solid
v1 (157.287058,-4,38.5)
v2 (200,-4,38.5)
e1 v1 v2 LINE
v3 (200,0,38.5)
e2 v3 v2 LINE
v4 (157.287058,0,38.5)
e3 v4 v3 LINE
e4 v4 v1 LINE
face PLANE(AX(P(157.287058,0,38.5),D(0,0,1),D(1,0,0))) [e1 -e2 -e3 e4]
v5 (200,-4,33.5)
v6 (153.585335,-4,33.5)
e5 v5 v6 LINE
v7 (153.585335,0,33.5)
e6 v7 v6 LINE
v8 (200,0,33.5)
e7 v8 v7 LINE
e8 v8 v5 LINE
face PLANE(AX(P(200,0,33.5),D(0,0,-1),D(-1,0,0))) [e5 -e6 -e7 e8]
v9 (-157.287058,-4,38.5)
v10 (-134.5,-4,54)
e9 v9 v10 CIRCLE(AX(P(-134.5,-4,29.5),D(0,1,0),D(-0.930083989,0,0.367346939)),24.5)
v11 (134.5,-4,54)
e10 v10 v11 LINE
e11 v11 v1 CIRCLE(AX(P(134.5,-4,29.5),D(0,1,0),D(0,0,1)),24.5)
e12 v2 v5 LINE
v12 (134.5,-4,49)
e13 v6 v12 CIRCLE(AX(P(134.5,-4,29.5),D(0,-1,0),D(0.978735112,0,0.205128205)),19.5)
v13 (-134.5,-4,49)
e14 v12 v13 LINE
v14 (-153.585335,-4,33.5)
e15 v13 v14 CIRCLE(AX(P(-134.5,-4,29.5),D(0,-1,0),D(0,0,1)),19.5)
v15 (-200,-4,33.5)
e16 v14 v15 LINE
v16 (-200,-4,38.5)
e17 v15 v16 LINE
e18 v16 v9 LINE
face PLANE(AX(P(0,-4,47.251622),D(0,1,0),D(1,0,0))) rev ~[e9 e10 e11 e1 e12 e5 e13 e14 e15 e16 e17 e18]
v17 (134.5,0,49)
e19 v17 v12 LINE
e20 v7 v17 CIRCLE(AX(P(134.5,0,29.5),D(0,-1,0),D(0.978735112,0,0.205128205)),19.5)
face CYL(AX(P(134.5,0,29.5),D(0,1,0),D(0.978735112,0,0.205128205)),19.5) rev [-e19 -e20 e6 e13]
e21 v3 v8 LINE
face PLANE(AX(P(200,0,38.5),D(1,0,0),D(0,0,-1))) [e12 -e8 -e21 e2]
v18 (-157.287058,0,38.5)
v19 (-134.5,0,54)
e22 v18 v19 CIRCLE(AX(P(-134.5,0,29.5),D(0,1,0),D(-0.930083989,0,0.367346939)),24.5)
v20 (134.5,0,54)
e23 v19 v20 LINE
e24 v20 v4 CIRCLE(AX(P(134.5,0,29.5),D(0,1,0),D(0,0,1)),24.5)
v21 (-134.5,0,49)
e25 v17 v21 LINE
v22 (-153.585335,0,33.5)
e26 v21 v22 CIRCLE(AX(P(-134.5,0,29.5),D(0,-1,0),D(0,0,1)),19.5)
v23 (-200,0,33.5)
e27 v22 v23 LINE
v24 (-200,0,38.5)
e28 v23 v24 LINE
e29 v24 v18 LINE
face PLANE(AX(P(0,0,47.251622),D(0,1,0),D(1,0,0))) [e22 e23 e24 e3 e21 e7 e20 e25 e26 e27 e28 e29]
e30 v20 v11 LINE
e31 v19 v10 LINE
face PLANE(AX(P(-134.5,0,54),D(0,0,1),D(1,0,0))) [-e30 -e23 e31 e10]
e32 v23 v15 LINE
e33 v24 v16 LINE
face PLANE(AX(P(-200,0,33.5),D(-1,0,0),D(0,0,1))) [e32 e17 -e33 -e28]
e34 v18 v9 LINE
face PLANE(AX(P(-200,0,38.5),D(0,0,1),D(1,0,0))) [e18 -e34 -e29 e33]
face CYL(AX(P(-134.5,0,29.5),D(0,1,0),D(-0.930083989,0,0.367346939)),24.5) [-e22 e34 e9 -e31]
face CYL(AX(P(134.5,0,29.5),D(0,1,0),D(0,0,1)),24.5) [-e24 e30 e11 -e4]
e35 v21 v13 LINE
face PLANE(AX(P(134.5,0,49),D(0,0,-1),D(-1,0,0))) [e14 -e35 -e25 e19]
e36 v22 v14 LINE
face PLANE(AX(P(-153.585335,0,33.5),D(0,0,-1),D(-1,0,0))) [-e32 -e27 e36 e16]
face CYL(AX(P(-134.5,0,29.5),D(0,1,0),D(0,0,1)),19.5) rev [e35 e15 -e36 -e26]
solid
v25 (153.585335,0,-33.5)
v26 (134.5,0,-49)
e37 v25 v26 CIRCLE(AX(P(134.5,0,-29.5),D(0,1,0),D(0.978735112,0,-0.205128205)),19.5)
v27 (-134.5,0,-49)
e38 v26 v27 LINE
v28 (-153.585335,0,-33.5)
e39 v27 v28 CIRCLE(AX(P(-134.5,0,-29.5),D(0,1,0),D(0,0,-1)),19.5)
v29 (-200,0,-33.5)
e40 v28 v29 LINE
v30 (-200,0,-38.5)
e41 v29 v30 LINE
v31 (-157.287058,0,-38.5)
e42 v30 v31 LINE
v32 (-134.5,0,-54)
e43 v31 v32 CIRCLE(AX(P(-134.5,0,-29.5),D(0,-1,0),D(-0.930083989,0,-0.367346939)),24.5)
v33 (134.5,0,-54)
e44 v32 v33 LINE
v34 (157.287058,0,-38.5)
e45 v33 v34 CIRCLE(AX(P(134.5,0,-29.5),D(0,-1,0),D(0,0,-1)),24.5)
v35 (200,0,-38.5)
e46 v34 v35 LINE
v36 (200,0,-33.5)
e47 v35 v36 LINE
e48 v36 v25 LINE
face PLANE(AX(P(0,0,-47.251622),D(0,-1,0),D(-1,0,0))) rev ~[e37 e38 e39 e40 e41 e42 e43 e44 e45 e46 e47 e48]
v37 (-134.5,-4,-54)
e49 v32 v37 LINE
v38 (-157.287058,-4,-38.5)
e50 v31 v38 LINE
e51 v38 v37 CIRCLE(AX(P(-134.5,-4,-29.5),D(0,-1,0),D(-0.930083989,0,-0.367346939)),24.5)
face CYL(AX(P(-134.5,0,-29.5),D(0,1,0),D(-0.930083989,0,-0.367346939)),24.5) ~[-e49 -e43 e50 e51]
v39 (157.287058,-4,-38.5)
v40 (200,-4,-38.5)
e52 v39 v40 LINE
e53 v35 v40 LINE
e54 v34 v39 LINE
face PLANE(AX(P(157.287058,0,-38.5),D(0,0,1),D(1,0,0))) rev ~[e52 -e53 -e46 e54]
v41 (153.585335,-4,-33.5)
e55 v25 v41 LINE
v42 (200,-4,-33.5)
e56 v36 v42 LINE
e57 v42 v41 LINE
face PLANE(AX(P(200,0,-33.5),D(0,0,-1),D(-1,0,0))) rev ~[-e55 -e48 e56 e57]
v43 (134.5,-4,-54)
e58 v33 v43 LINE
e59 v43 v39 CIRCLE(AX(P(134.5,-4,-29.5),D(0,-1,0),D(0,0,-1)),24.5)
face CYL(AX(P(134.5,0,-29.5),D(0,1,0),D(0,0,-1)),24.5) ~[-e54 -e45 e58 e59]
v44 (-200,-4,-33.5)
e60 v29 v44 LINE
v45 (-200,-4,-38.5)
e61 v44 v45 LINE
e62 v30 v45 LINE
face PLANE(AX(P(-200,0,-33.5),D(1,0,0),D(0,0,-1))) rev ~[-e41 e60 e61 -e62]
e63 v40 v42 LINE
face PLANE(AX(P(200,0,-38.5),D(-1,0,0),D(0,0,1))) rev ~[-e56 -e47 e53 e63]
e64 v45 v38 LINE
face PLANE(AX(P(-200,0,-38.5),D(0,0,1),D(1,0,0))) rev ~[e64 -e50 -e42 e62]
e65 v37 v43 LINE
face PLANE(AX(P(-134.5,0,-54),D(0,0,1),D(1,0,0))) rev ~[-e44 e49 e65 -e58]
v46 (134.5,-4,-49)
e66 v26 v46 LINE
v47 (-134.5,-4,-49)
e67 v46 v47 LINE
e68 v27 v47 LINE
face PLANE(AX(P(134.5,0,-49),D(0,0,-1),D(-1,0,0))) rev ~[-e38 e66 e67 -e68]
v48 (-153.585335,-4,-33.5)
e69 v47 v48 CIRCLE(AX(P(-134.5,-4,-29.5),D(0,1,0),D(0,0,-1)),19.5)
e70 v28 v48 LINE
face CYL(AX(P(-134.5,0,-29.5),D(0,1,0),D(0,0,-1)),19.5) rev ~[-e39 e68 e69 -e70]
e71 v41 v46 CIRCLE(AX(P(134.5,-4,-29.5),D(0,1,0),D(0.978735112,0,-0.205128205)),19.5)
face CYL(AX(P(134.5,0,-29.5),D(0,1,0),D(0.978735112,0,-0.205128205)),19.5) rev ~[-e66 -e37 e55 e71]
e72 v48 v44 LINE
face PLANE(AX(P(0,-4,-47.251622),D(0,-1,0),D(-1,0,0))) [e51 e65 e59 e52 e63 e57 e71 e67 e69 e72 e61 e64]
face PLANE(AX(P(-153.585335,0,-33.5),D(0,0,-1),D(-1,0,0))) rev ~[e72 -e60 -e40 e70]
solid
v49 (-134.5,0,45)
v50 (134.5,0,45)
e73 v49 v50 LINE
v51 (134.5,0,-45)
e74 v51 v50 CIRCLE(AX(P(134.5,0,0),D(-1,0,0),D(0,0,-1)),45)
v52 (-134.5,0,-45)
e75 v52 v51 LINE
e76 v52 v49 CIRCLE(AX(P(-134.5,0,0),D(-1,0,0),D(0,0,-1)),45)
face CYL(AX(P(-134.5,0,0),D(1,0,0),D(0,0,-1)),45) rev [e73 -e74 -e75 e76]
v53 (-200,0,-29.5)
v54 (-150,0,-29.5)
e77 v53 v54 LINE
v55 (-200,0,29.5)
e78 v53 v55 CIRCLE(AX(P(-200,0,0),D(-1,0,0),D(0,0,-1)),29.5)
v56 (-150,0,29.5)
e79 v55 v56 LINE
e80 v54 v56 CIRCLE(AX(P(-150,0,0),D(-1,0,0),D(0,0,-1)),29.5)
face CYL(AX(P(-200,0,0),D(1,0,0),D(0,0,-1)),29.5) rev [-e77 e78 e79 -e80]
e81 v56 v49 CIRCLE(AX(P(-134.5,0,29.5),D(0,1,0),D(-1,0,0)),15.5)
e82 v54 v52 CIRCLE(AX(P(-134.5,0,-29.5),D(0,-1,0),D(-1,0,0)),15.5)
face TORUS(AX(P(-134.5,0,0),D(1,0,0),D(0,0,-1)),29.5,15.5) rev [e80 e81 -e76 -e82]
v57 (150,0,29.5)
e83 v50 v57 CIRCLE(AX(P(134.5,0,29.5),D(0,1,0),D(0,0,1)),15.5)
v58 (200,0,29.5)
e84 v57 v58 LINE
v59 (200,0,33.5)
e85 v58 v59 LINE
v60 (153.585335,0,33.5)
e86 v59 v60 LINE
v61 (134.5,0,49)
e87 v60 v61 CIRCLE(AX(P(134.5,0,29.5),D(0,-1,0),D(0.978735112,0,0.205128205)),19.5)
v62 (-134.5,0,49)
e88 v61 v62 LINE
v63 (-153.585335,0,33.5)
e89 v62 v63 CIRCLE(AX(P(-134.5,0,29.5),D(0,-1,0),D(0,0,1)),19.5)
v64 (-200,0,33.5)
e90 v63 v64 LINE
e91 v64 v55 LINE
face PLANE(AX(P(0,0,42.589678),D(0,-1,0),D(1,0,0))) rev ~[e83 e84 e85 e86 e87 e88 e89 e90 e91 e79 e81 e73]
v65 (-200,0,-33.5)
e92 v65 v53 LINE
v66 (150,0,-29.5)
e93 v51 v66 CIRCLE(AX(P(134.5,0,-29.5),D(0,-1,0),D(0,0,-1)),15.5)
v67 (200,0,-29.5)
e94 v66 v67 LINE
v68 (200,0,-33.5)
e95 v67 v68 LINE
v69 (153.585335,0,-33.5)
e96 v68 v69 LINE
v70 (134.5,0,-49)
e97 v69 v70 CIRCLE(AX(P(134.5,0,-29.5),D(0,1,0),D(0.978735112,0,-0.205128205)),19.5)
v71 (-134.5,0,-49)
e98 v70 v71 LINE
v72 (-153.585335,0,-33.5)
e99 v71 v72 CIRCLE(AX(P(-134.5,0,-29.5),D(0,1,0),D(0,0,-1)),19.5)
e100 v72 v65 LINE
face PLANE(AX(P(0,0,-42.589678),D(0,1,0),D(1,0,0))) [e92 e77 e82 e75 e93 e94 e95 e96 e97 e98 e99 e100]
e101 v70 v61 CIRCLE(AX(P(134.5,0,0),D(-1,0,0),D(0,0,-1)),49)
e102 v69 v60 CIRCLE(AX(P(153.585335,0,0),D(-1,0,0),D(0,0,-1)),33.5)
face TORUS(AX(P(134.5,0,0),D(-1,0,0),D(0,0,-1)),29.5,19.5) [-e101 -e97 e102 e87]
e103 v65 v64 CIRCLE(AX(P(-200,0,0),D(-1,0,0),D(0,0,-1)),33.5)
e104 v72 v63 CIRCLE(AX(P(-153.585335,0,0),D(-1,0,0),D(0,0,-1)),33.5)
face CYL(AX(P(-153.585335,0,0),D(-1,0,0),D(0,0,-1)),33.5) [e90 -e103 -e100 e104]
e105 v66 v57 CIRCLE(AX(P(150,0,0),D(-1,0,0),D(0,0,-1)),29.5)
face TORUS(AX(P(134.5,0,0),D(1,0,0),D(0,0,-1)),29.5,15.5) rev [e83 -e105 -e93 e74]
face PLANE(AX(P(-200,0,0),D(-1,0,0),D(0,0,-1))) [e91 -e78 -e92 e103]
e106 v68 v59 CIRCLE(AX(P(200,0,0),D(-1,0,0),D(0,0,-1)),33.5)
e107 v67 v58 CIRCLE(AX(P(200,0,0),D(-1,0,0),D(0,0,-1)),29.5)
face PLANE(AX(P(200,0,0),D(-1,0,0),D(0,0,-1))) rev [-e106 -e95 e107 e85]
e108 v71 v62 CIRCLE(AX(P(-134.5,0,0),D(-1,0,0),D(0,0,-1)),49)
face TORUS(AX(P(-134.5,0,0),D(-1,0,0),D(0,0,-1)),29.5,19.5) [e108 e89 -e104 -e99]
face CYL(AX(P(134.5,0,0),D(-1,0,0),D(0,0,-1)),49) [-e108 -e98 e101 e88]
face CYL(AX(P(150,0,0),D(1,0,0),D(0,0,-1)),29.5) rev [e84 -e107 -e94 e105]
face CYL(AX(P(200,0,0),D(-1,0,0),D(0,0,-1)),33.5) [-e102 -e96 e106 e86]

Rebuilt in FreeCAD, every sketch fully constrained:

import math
import FreeCAD as App
import Part
import Sketcher

V = App.Vector
Q = App.Units.Quantity

doc = App.newDocument("Part")
body = doc.addObject("PartDesign::Body", "Body")

sketch1 = body.newObject("Sketcher::SketchObject", "Sketch")
sketch1.AttachmentSupport = (doc.getObject("XZ_Plane"), [""])
sketch1.MapMode = "FlatFace"
sketch1.addGeometry(Part.LineSegment(V(-200, -29.5, 0), V(-150, -29.5, 0)), False)
sketch1.addGeometry(Part.ArcOfCircle(Part.Circle(V(-134.5, -29.5, 0), V(0, 0, 1), 15.5), math.radians(-180), math.radians(-90)), False)
sketch1.addGeometry(Part.LineSegment(V(-134.5, -45, 0), V(134.5, -45, 0)), False)
sketch1.addGeometry(Part.ArcOfCircle(Part.Circle(V(134.5, -29.5, 0), V(0, 0, 1), 15.5), math.radians(-90), math.radians(0)), False)
sketch1.addGeometry(Part.LineSegment(V(150, -29.5, 0), V(200, -29.5, 0)), False)
sketch1.addGeometry(Part.LineSegment(V(200, -29.5, 0), V(200, -33.5, 0)), False)
sketch1.addGeometry(Part.LineSegment(V(200, -33.5, 0), V(153.6, -33.5, 0)), False)
sketch1.addGeometry(Part.ArcOfCircle(Part.Circle(V(134.5, -29.5, 0), V(0, 0, 1), 19.5), math.radians(-90), math.radians(-12)), False)
sketch1.addGeometry(Part.LineSegment(V(134.5, -49, 0), V(-134.5, -49, 0)), False)
sketch1.addGeometry(Part.ArcOfCircle(Part.Circle(V(-134.5, -29.5, 0), V(0, 0, 1), 19.5), math.radians(-168), math.radians(-90)), False)
sketch1.addGeometry(Part.LineSegment(V(-153.6, -33.5, 0), V(-200, -33.5, 0)), False)
sketch1.addGeometry(Part.LineSegment(V(-200, -33.5, 0), V(-200, -29.5, 0)), False)
sketch1.addConstraint(Sketcher.Constraint("Coincident", 0, 2, 1, 1))
sketch1.addConstraint(Sketcher.Constraint("Tangent", 1, 2, 2, 1))
sketch1.addConstraint(Sketcher.Constraint("Tangent", 2, 2, 3, 1))
sketch1.addConstraint(Sketcher.Constraint("Coincident", 3, 2, 4, 1))
sketch1.addConstraint(Sketcher.Constraint("Coincident", 4, 2, 5, 1))
sketch1.addConstraint(Sketcher.Constraint("Coincident", 5, 2, 6, 1))
sketch1.addConstraint(Sketcher.Constraint("Coincident", 6, 2, 7, 2))
sketch1.addConstraint(Sketcher.Constraint("Tangent", 7, 1, 8, 1))
sketch1.addConstraint(Sketcher.Constraint("Tangent", 8, 2, 9, 2))
sketch1.addConstraint(Sketcher.Constraint("Coincident", 9, 1, 10, 1))
sketch1.addConstraint(Sketcher.Constraint("Coincident", 10, 2, 11, 1))
sketch1.addConstraint(Sketcher.Constraint("Coincident", 11, 2, 0, 1))
sketch1.addConstraint(Sketcher.Constraint("Horizontal", 0))
sketch1.addConstraint(Sketcher.Constraint("Horizontal", 2))
sketch1.addConstraint(Sketcher.Constraint("Horizontal", 4))
sketch1.addConstraint(Sketcher.Constraint("Vertical", 5))
sketch1.addConstraint(Sketcher.Constraint("Horizontal", 6))
sketch1.addConstraint(Sketcher.Constraint("Horizontal", 8))
sketch1.addConstraint(Sketcher.Constraint("Horizontal", 10))
sketch1.addConstraint(Sketcher.Constraint("Vertical", 11))
sketch1.addConstraint(Sketcher.Constraint("Coincident", 7, 3, 3, 3))
sketch1.addConstraint(Sketcher.Constraint("Coincident", 9, 3, 1, 3))
sketch1.addConstraint(Sketcher.Constraint("Equal", 1, 3))
sketch1.addConstraint(Sketcher.Constraint("Symmetric", 0, 2, 3, 2, -2))
sketch1.addConstraint(Sketcher.Constraint("Symmetric", 5, 2, 10, 2, -2))
sketch1.addConstraint(Sketcher.Constraint("Horizontal", 9, 3, 0, 2))
sketch1.addConstraint(Sketcher.Constraint("Radius", 1, Q("15.5 mm")))
sketch1.addConstraint(Sketcher.Constraint("Radius", 7, Q("19.5 mm")))
sketch1.addConstraint(Sketcher.Constraint("DistanceX", 0, 1, 0, 2, Q("50 mm")))
sketch1.addConstraint(Sketcher.Constraint("DistanceX", 2, 1, 2, 2, Q("269 mm")))
sketch1.addConstraint(Sketcher.Constraint("DistanceY", 5, 2, 5, 1, Q("4 mm")))
sketch1.addConstraint(Sketcher.Constraint("DistanceY", 1, 2, -1, 1, Q("45 mm")))
revolution = body.newObject("PartDesign::Revolution", "Revolution")
revolution.Profile = sketch1
revolution.ReferenceAxis = (sketch1, ["H_Axis"])
revolution.Angle = 180
revolution.Reversed = True
body2 = doc.addObject("PartDesign::Body", "Body001")

sketch2 = body2.newObject("Sketcher::SketchObject", "Sketch001")
sketch2.AttachmentSupport = (doc.getObject("XZ_Plane001"), [""])
sketch2.MapMode = "FlatFace"
sketch2.addGeometry(Part.LineSegment(V(154, -34, 0), V(200, -34, 0)), False)
sketch2.addGeometry(Part.LineSegment(V(200, -34, 0), V(200, -38, 0)), False)
sketch2.addGeometry(Part.LineSegment(V(200, -38, 0), V(157, -38, 0)), False)
sketch2.addGeometry(Part.ArcOfCircle(Part.Circle(V(135, -30, 0), V(0, 0, 1), 24), math.radians(-90), math.radians(-22)), False)
sketch2.addGeometry(Part.LineSegment(V(134, -54, 0), V(-134, -54, 0)), False)
sketch2.addGeometry(Part.ArcOfCircle(Part.Circle(V(-135, -30, 0), V(0, 0, 1), 24), math.radians(-158), math.radians(-90)), False)
sketch2.addGeometry(Part.LineSegment(V(-157, -38, 0), V(-200, -38, 0)), False)
sketch2.addGeometry(Part.LineSegment(V(-200, -38, 0), V(-200, -34, 0)), False)
sketch2.addGeometry(Part.LineSegment(V(-200, -34, 0), V(-154, -34, 0)), False)
sketch2.addGeometry(Part.ArcOfCircle(Part.Circle(V(-134, -29, 0), V(0, 0, 1), 20), math.radians(-168), math.radians(-90)), False)
sketch2.addGeometry(Part.LineSegment(V(-134, -49, 0), V(134, -49, 0)), False)
sketch2.addGeometry(Part.ArcOfCircle(Part.Circle(V(134, -29, 0), V(0, 0, 1), 20), math.radians(-90), math.radians(-12)), False)
sketch2.addConstraint(Sketcher.Constraint("Coincident", 0, 2, 1, 1))
sketch2.addConstraint(Sketcher.Constraint("Coincident", 1, 2, 2, 1))
sketch2.addConstraint(Sketcher.Constraint("Coincident", 2, 2, 3, 2))
sketch2.addConstraint(Sketcher.Constraint("Tangent", 3, 1, 4, 1))
sketch2.addConstraint(Sketcher.Constraint("Tangent", 4, 2, 5, 2))
sketch2.addConstraint(Sketcher.Constraint("Coincident", 5, 1, 6, 1))
sketch2.addConstraint(Sketcher.Constraint("Coincident", 6, 2, 7, 1))
sketch2.addConstraint(Sketcher.Constraint("Coincident", 7, 2, 8, 1))
sketch2.addConstraint(Sketcher.Constraint("Coincident", 8, 2, 9, 1))
sketch2.addConstraint(Sketcher.Constraint("Tangent", 9, 2, 10, 1))
sketch2.addConstraint(Sketcher.Constraint("Tangent", 10, 2, 11, 1))
sketch2.addConstraint(Sketcher.Constraint("Coincident", 11, 2, 0, 1))
sketch2.addConstraint(Sketcher.Constraint("Horizontal", 0))
sketch2.addConstraint(Sketcher.Constraint("Vertical", 1))
sketch2.addConstraint(Sketcher.Constraint("Horizontal", 2))
sketch2.addConstraint(Sketcher.Constraint("Horizontal", 4))
sketch2.addConstraint(Sketcher.Constraint("Horizontal", 6))
sketch2.addConstraint(Sketcher.Constraint("Vertical", 7))
sketch2.addConstraint(Sketcher.Constraint("Horizontal", 8))
sketch2.addConstraint(Sketcher.Constraint("Horizontal", 10))
sketch2.addConstraint(Sketcher.Constraint("Coincident", 9, 3, 5, 3))
sketch2.addConstraint(Sketcher.Constraint("Coincident", 11, 3, 3, 3))
sketch2.addConstraint(Sketcher.Constraint("Equal", 3, 5))
sketch2.addConstraint(Sketcher.Constraint("Symmetric", 2, 2, 5, 1, -2))
sketch2.addConstraint(Sketcher.Constraint("Symmetric", 0, 2, 7, 2, -2))
sketch2.addConstraint(Sketcher.Constraint("Radius", 3, Q("24.5 mm")))
sketch2.addConstraint(Sketcher.Constraint("Radius", 9, Q("19.5 mm")))
sketch2.addConstraint(Sketcher.Constraint("DistanceX", 4, 2, 4, 1, Q("269 mm")))
sketch2.addConstraint(Sketcher.Constraint("DistanceY", 1, 2, 1, 1, Q("5 mm")))
sketch2.addConstraint(Sketcher.Constraint("DistanceX", -1, 1, 0, 2, Q("200 mm")))
sketch2.addConstraint(Sketcher.Constraint("DistanceY", 3, 1, -1, 1, Q("54 mm")))
sketch2.addConstraint(Sketcher.Constraint("DistanceY", 0, 2, 3, 3, Q("4 mm")))
pad1 = body2.newObject("PartDesign::Pad", "Pad")
pad1.Profile = sketch2
pad1.Length = 4
body3 = doc.addObject("PartDesign::Body", "Body002")

sketch3 = body3.newObject("Sketcher::SketchObject", "Sketch002")
sketch3.AttachmentSupport = (doc.getObject("XZ_Plane002"), [""])
sketch3.MapMode = "FlatFace"
sketch3.addGeometry(Part.LineSegment(V(200, 38, 0), V(200, 34, 0)), False)
sketch3.addGeometry(Part.LineSegment(V(200, 34, 0), V(154, 34, 0)), False)
sketch3.addGeometry(Part.ArcOfCircle(Part.Circle(V(134, 29, 0), V(0, 0, 1), 20), math.radians(12), math.radians(90)), False)
sketch3.addGeometry(Part.LineSegment(V(134, 49, 0), V(-134, 49, 0)), False)
sketch3.addGeometry(Part.ArcOfCircle(Part.Circle(V(-134, 29, 0), V(0, 0, 1), 20), math.radians(90), math.radians(168)), False)
sketch3.addGeometry(Part.LineSegment(V(-154, 34, 0), V(-200, 34, 0)), False)
sketch3.addGeometry(Part.LineSegment(V(-200, 34, 0), V(-200, 38, 0)), False)
sketch3.addGeometry(Part.LineSegment(V(-200, 38, 0), V(-157, 38, 0)), False)
sketch3.addGeometry(Part.ArcOfCircle(Part.Circle(V(-135, 30, 0), V(0, 0, 1), 24), math.radians(90), math.radians(158)), False)
sketch3.addGeometry(Part.LineSegment(V(-134, 54, 0), V(134, 54, 0)), False)
sketch3.addGeometry(Part.ArcOfCircle(Part.Circle(V(135, 30, 0), V(0, 0, 1), 24), math.radians(22), math.radians(90)), False)
sketch3.addGeometry(Part.LineSegment(V(157, 38, 0), V(200, 38, 0)), False)
sketch3.addConstraint(Sketcher.Constraint("Coincident", 0, 2, 1, 1))
sketch3.addConstraint(Sketcher.Constraint("Coincident", 1, 2, 2, 1))
sketch3.addConstraint(Sketcher.Constraint("Tangent", 2, 2, 3, 1))
sketch3.addConstraint(Sketcher.Constraint("Tangent", 3, 2, 4, 1))
sketch3.addConstraint(Sketcher.Constraint("Coincident", 4, 2, 5, 1))
sketch3.addConstraint(Sketcher.Constraint("Coincident", 5, 2, 6, 1))
sketch3.addConstraint(Sketcher.Constraint("Coincident", 6, 2, 7, 1))
sketch3.addConstraint(Sketcher.Constraint("Coincident", 7, 2, 8, 2))
sketch3.addConstraint(Sketcher.Constraint("Tangent", 8, 1, 9, 1))
sketch3.addConstraint(Sketcher.Constraint("Tangent", 9, 2, 10, 2))
sketch3.addConstraint(Sketcher.Constraint("Coincident", 10, 1, 11, 1))
sketch3.addConstraint(Sketcher.Constraint("Coincident", 11, 2, 0, 1))
sketch3.addConstraint(Sketcher.Constraint("Vertical", 0))
sketch3.addConstraint(Sketcher.Constraint("Horizontal", 1))
sketch3.addConstraint(Sketcher.Constraint("Horizontal", 3))
sketch3.addConstraint(Sketcher.Constraint("Horizontal", 5))
sketch3.addConstraint(Sketcher.Constraint("Vertical", 6))
sketch3.addConstraint(Sketcher.Constraint("Horizontal", 7))
sketch3.addConstraint(Sketcher.Constraint("Horizontal", 9))
sketch3.addConstraint(Sketcher.Constraint("Horizontal", 11))
sketch3.addConstraint(Sketcher.Constraint("Coincident", 8, 3, 4, 3))
sketch3.addConstraint(Sketcher.Constraint("Coincident", 10, 3, 2, 3))
sketch3.addConstraint(Sketcher.Constraint("Equal", 2, 4))
sketch3.addConstraint(Sketcher.Constraint("Symmetric", 1, 2, 4, 2, -2))
sketch3.addConstraint(Sketcher.Constraint("Symmetric", 6, 2, 11, 2, -2))
sketch3.addConstraint(Sketcher.Constraint("Radius", 2, Q("19.5 mm")))
sketch3.addConstraint(Sketcher.Constraint("Radius", 8, Q("24.5 mm")))
sketch3.addConstraint(Sketcher.Constraint("DistanceX", 3, 2, 3, 1, Q("269 mm")))
sketch3.addConstraint(Sketcher.Constraint("DistanceY", 0, 2, 0, 1, Q("5 mm")))
sketch3.addConstraint(Sketcher.Constraint("DistanceX", -1, 1, 0, 2, Q("200 mm")))
sketch3.addConstraint(Sketcher.Constraint("DistanceY", -1, 1, 2, 2, Q("49 mm")))
sketch3.addConstraint(Sketcher.Constraint("DistanceY", 10, 3, 0, 2, Q("4 mm")))
pad2 = body3.newObject("PartDesign::Pad", "Pad001")
pad2.Profile = sketch3
pad2.Length = 4

doc.recompute()
